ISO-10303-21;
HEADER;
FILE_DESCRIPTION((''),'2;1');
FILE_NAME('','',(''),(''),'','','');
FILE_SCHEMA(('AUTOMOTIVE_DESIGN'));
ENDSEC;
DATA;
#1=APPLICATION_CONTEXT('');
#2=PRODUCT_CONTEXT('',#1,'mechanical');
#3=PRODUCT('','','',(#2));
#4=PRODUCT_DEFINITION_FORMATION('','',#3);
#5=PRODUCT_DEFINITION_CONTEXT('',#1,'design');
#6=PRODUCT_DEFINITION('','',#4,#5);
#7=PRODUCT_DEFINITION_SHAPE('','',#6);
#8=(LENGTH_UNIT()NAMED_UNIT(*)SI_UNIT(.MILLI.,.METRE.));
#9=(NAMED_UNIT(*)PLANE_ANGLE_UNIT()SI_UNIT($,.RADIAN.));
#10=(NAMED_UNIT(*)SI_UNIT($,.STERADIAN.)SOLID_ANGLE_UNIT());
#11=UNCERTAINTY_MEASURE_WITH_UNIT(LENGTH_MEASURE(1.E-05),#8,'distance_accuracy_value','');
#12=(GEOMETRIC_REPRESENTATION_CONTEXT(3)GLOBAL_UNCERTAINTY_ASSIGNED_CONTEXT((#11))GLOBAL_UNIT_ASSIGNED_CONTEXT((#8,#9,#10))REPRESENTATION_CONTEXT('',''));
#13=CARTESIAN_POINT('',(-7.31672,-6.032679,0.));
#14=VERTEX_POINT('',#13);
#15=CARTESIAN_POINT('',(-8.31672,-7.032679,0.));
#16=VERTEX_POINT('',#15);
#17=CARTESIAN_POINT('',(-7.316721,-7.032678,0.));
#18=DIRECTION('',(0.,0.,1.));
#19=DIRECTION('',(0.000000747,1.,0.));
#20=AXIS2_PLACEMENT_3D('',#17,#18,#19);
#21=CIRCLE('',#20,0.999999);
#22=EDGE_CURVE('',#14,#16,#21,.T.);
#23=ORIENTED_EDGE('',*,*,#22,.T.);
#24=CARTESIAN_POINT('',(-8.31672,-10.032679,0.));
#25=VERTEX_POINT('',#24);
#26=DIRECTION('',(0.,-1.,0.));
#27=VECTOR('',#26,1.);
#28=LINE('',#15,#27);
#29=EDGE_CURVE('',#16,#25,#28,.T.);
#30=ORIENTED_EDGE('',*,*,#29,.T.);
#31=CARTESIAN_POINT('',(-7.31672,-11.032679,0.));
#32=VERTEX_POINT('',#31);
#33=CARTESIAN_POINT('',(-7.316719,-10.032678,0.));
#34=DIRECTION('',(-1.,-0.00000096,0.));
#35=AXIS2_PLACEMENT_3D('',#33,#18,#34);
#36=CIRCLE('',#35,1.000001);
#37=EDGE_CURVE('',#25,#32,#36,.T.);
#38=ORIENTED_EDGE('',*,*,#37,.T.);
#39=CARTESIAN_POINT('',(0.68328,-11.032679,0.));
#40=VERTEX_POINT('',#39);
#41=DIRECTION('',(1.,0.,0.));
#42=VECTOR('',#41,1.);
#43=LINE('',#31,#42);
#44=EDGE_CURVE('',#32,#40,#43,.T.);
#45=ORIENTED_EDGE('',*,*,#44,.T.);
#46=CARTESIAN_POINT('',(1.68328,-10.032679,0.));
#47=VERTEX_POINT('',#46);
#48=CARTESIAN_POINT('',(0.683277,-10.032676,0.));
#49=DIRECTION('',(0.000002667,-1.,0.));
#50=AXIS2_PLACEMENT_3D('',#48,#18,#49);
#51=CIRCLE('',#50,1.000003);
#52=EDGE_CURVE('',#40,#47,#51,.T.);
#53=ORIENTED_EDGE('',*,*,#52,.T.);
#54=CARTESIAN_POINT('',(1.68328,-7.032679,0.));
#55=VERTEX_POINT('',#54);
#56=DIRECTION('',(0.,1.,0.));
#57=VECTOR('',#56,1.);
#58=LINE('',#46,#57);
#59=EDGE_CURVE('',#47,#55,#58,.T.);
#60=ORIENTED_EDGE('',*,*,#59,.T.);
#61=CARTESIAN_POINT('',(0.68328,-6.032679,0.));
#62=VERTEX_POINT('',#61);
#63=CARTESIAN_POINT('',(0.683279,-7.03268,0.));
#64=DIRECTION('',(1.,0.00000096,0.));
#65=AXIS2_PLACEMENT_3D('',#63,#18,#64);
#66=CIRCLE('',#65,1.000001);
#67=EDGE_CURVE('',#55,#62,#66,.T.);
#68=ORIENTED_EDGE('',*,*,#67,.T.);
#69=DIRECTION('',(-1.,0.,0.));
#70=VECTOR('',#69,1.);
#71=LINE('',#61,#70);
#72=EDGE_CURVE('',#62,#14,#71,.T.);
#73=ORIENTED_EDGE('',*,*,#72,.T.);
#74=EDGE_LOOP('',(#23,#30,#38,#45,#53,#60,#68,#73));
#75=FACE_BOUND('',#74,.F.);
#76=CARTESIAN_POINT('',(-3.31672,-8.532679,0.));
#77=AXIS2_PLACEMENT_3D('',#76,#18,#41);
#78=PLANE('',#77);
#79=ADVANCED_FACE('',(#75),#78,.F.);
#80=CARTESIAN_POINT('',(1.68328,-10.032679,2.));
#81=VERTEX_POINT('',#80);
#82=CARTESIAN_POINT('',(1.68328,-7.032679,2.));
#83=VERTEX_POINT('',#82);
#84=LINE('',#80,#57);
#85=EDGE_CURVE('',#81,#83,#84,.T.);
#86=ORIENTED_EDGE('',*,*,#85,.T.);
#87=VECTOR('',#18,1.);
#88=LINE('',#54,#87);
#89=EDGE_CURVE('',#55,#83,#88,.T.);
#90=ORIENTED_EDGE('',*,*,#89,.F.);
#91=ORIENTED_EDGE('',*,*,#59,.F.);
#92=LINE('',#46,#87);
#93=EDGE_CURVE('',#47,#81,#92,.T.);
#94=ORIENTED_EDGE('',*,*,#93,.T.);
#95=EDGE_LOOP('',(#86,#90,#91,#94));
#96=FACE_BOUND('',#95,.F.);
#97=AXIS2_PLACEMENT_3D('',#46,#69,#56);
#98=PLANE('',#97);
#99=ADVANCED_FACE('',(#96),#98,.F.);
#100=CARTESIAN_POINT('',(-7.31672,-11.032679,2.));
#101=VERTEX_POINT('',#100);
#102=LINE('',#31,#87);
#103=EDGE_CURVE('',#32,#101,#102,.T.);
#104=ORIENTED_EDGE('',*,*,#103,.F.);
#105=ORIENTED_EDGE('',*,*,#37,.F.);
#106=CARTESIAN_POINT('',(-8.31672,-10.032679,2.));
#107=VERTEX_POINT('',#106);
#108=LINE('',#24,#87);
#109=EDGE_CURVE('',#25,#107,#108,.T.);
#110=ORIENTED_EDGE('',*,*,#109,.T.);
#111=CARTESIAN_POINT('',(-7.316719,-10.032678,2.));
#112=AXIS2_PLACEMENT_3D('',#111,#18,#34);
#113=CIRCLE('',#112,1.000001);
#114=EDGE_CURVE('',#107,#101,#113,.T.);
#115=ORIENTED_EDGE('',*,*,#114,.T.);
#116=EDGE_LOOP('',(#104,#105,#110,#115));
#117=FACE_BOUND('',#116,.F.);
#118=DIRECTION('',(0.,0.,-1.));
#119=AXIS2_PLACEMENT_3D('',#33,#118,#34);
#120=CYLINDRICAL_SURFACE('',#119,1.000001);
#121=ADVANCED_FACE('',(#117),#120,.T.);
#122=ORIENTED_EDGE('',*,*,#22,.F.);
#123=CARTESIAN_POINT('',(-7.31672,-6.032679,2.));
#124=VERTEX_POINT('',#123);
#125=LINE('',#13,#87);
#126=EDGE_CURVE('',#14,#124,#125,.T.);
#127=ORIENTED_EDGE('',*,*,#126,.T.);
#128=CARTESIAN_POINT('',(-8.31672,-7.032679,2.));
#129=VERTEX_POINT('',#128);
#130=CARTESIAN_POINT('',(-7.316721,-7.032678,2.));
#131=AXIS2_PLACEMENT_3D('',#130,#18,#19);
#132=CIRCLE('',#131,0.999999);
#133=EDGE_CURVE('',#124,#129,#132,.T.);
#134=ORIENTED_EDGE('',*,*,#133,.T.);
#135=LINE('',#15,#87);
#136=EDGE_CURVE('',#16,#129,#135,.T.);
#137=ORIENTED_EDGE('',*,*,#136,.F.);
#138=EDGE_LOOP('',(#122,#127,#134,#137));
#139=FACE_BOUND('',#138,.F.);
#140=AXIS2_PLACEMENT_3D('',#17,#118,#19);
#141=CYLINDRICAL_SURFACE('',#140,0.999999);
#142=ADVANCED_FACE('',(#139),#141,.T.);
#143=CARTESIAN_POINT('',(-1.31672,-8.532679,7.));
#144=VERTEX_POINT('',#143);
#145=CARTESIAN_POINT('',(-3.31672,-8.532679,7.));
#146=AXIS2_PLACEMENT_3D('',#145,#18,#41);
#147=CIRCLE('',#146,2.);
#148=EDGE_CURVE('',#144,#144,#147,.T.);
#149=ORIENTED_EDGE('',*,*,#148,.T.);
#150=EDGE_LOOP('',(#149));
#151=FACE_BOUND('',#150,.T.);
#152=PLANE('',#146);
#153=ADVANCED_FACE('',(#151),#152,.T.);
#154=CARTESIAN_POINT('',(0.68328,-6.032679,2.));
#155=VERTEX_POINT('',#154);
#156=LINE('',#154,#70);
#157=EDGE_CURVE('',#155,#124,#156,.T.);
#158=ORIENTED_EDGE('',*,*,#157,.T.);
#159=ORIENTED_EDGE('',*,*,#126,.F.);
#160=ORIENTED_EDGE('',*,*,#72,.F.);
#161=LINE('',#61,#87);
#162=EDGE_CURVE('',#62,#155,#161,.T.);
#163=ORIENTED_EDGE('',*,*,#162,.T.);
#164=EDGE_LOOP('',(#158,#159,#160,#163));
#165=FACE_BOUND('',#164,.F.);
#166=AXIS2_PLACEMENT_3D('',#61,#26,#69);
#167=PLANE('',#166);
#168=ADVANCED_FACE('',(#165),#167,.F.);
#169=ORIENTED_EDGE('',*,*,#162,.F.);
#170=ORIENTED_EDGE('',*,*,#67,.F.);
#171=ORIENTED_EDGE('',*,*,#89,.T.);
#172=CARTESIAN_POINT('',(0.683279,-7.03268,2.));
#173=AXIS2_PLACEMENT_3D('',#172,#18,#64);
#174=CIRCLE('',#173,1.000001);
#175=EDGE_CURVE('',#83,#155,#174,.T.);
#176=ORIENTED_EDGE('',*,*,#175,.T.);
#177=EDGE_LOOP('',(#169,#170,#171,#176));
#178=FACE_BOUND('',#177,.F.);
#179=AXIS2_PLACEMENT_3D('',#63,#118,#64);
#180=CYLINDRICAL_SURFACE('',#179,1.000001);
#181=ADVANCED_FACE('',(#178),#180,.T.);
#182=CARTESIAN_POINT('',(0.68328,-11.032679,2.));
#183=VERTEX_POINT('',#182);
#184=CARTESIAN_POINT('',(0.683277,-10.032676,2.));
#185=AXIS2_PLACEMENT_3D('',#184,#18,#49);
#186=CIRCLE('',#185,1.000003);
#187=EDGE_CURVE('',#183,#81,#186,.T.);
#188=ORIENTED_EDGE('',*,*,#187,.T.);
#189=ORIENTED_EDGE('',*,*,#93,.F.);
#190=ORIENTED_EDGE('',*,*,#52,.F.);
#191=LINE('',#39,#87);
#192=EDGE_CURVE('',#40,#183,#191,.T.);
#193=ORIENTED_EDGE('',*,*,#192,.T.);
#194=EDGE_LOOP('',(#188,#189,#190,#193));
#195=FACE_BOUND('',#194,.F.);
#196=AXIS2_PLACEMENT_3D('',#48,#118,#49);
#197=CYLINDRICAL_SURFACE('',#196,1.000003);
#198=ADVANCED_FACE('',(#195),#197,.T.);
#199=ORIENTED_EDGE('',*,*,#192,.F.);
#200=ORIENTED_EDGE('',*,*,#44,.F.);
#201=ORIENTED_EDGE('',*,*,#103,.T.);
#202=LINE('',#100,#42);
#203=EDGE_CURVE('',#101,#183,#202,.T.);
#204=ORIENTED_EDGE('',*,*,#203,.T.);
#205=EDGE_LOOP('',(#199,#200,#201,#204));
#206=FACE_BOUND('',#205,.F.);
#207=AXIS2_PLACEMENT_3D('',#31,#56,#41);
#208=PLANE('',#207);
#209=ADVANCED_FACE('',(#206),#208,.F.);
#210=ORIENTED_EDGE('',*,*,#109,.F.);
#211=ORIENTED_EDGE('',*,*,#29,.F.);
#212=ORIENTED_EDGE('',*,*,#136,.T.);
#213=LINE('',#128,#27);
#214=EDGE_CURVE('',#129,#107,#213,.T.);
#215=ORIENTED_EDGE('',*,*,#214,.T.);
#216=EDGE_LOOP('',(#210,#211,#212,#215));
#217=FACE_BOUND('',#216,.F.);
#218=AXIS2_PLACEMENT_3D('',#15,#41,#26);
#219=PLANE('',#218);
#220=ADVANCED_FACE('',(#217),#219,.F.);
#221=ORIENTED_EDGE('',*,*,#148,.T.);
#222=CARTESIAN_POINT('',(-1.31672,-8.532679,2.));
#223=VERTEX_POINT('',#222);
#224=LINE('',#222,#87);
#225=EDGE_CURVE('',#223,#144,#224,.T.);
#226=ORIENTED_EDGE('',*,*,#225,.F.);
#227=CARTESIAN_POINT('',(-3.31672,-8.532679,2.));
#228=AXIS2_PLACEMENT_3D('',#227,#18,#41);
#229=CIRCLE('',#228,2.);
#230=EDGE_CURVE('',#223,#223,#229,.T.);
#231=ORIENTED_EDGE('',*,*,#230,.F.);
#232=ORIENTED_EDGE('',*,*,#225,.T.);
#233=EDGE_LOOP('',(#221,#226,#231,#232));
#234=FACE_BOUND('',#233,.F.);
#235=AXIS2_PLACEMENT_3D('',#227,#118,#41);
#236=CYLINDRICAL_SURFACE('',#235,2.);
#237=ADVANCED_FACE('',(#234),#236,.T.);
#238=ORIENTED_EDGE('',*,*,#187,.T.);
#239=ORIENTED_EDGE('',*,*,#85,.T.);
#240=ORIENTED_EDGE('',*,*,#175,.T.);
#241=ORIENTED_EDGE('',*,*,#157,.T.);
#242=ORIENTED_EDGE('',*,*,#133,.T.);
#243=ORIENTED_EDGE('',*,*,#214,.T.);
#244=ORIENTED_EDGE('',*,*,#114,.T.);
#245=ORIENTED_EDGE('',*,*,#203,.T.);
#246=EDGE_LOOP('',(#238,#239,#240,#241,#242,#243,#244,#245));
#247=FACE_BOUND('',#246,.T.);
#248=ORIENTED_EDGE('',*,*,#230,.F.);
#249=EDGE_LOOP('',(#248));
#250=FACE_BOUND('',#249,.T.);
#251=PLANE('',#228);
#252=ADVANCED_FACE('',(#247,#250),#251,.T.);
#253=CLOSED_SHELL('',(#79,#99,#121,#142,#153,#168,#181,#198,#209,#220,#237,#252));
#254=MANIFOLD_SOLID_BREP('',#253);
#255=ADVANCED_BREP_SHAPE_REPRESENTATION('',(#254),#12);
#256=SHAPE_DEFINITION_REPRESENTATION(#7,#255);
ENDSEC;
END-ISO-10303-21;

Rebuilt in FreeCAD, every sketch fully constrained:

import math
import FreeCAD as App
import Part
import Sketcher

doc = App.newDocument("Part")
params = doc.addObject("Spreadsheet::Sheet", "Params")
for row, (alias, value) in enumerate([
    ("sketch1_radius", "0.999999 mm"),
    ("sketch1_width", "8 mm"),
    ("sketch1_height", "3 mm"),
    ("pad1_length", "2 mm"),
    ("sketch2_diameter", "4 mm"),
    ("pad2_length", "5 mm"),
], start=1):
    params.set(f"A{row}", alias)
    params.set(f"B{row}", "=" + value)
    params.setAlias(f"B{row}", alias)

body = doc.addObject("PartDesign::Body", "Body")

sketch1 = body.newObject("Sketcher::SketchObject", "Sketch")
sketch1.AttachmentSupport = (doc.getObject("XY_Plane"), [""])
sketch1.MapMode = "FlatFace"
sketch1.addGeometry(Part.LineSegment(App.Vector(0.7, -6, 0), App.Vector(-7.3, -6, 0)), False)
sketch1.addGeometry(Part.ArcOfCircle(Part.Circle(App.Vector(-7.3, -7, 0), App.Vector(0, 0, 1), 1), math.radians(90), math.radians(180)), False)
sketch1.addGeometry(Part.LineSegment(App.Vector(-8.3, -7, 0), App.Vector(-8.3, -10, 0)), False)
sketch1.addGeometry(Part.ArcOfCircle(Part.Circle(App.Vector(-7.3, -10, 0), App.Vector(0, 0, 1), 1), math.radians(-180), math.radians(-90)), False)
sketch1.addGeometry(Part.LineSegment(App.Vector(-7.3, -11, 0), App.Vector(0.7, -11, 0)), False)
sketch1.addGeometry(Part.ArcOfCircle(Part.Circle(App.Vector(0.7, -10, 0), App.Vector(0, 0, 1), 1), math.radians(-90), math.radians(0)), False)
sketch1.addGeometry(Part.LineSegment(App.Vector(1.7, -10, 0), App.Vector(1.7, -7, 0)), False)
sketch1.addGeometry(Part.ArcOfCircle(Part.Circle(App.Vector(0.7, -7, 0), App.Vector(0, 0, 1), 1), math.radians(0), math.radians(90)), False)
sketch1.addConstraint(Sketcher.Constraint("Tangent", 0, 2, 1, 1))
sketch1.addConstraint(Sketcher.Constraint("Tangent", 1, 2, 2, 1))
sketch1.addConstraint(Sketcher.Constraint("Tangent", 2, 2, 3, 1))
sketch1.addConstraint(Sketcher.Constraint("Tangent", 3, 2, 4, 1))
sketch1.addConstraint(Sketcher.Constraint("Coincident", 4, 2, 5, 1))
sketch1.addConstraint(Sketcher.Constraint("Coincident", 5, 2, 6, 1))
sketch1.addConstraint(Sketcher.Constraint("Tangent", 6, 2, 7, 1))
sketch1.addConstraint(Sketcher.Constraint("Tangent", 7, 2, 0, 1))
sketch1.addConstraint(Sketcher.Constraint("Horizontal", 0))
sketch1.addConstraint(Sketcher.Constraint("Vertical", 2))
sketch1.addConstraint(Sketcher.Constraint("Horizontal", 4))
sketch1.addConstraint(Sketcher.Constraint("Vertical", 6))
sketch1.addConstraint(Sketcher.Constraint("Equal", 1, 3))
sketch1.addConstraint(Sketcher.Constraint("Equal", 3, 5))
sketch1.addConstraint(Sketcher.Constraint("Equal", 5, 7))
sketch1.addConstraint(Sketcher.Constraint("Horizontal", 2, 2, 5, 2))
sketch1.addConstraint(Sketcher.Constraint("Vertical", 7, 3, 4, 2))
sketch1.addConstraint(Sketcher.Constraint("Radius", 1, 0.999999))
sketch1.addConstraint(Sketcher.Constraint("DistanceX", 0, 2, 0, 1, 8.0))
sketch1.addConstraint(Sketcher.Constraint("DistanceY", 2, 2, 2, 1, 3.0))
sketch1.addConstraint(Sketcher.Constraint("DistanceX", 1, 3, -1, 1, 7.316721))
sketch1.addConstraint(Sketcher.Constraint("DistanceY", 1, 3, -1, 1, 7.032678))
sketch1.setExpression("Constraints[17]", "Params.sketch1_radius")
sketch1.setExpression("Constraints[18]", "Params.sketch1_width")
sketch1.setExpression("Constraints[19]", "Params.sketch1_height")
pad1 = body.newObject("PartDesign::Pad", "Pad")
pad1.Profile = sketch1
pad1.setExpression("Length", "Params.pad1_length")

sketch2 = body.newObject("Sketcher::SketchObject", "Sketch001")
sketch2.AttachmentSupport = (doc.getObject("XY_Plane"), [""])
sketch2.MapMode = "FlatFace"
sketch2.AttachmentOffset = App.Placement(App.Vector(0, 0, 2), App.Rotation())
sketch2.addGeometry(Part.Circle(App.Vector(-3.3, -8.5, 0), App.Vector(0, 0, 1), 2), False)
sketch2.addConstraint(Sketcher.Constraint("Diameter", 0, 4.0))
sketch2.addConstraint(Sketcher.Constraint("DistanceX", 0, 3, -1, 1, 3.31672))
sketch2.addConstraint(Sketcher.Constraint("DistanceY", 0, 3, -1, 1, 8.532679))
sketch2.setExpression("Constraints[0]", "Params.sketch2_diameter")
pad2 = body.newObject("PartDesign::Pad", "Pad001")
pad2.Profile = sketch2
pad2.setExpression("Length", "Params.pad2_length")

doc.recompute()
